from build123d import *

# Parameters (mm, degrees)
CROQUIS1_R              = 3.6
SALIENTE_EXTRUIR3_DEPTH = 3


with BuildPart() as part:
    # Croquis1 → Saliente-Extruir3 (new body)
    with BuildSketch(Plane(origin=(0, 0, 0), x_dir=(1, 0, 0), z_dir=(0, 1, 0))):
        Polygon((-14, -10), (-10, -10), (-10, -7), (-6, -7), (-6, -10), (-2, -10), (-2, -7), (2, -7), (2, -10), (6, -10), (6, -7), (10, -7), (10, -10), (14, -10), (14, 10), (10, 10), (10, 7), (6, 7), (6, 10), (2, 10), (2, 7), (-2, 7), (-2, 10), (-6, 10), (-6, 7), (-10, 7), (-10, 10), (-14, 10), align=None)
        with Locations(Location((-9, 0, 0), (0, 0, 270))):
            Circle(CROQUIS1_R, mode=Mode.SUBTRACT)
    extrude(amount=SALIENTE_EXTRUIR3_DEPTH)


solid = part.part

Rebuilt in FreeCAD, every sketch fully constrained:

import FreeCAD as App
import Part
import Sketcher
from FreeCAD import Vector
Q = App.Units.Quantity

doc = App.newDocument("Part")
body = doc.addObject("PartDesign::Body", "Body")

# Sketch on XZ plane
sketch1 = body.newObject("Sketcher::SketchObject", "Sketch")
sketch1.AttachmentSupport = (doc.getObject("XZ_Plane"), [""])
sketch1.MapMode = "FlatFace"
sketch1.addGeometry([
    Part.LineSegment(Vector(-14, 10, 0), Vector(-10, 10, 0)),  # 0
    Part.LineSegment(Vector(-10, 10, 0), Vector(-10, 7, 0)),  # 1
    Part.LineSegment(Vector(-10, 7, 0), Vector(-6, 7, 0)),  # 2
    Part.LineSegment(Vector(-6, 7, 0), Vector(-6, 10, 0)),  # 3
    Part.LineSegment(Vector(-6, 10, 0), Vector(-2, 10, 0)),  # 4
    Part.LineSegment(Vector(-2, 10, 0), Vector(-2, 7, 0)),  # 5
    Part.LineSegment(Vector(-2, 7, 0), Vector(2, 7, 0)),  # 6
    Part.LineSegment(Vector(2, 7, 0), Vector(2, 10, 0)),  # 7
    Part.LineSegment(Vector(2, 10, 0), Vector(6, 10, 0)),  # 8
    Part.LineSegment(Vector(6, 10, 0), Vector(6, 7, 0)),  # 9
    Part.LineSegment(Vector(6, 7, 0), Vector(10, 7, 0)),  # 10
    Part.LineSegment(Vector(10, 7, 0), Vector(10, 10, 0)),  # 11
    Part.LineSegment(Vector(10, 10, 0), Vector(14, 10, 0)),  # 12
    Part.LineSegment(Vector(14, 10, 0), Vector(14, -10, 0)),  # 13
    Part.LineSegment(Vector(14, -10, 0), Vector(10, -10, 0)),  # 14
    Part.LineSegment(Vector(10, -10, 0), Vector(10, -7, 0)),  # 15
    Part.LineSegment(Vector(10, -7, 0), Vector(6, -7, 0)),  # 16
    Part.LineSegment(Vector(6, -7, 0), Vector(6, -10, 0)),  # 17
    Part.LineSegment(Vector(6, -10, 0), Vector(2, -10, 0)),  # 18
    Part.LineSegment(Vector(2, -10, 0), Vector(2, -7, 0)),  # 19
    Part.LineSegment(Vector(2, -7, 0), Vector(-2, -7, 0)),  # 20
    Part.LineSegment(Vector(-2, -7, 0), Vector(-2, -10, 0)),  # 21
    Part.LineSegment(Vector(-2, -10, 0), Vector(-6, -10, 0)),  # 22
    Part.LineSegment(Vector(-6, -10, 0), Vector(-6, -7, 0)),  # 23
    Part.LineSegment(Vector(-6, -7, 0), Vector(-10, -7, 0)),  # 24
    Part.LineSegment(Vector(-10, -7, 0), Vector(-10, -10, 0)),  # 25
    Part.LineSegment(Vector(-10, -10, 0), Vector(-14, -10, 0)),  # 26
    Part.LineSegment(Vector(-14, -10, 0), Vector(-14, 10, 0)),  # 27
    Part.Circle(Vector(-9, 0, 0), Vector(0, 0, 1), 3.6),  # 28
], False)
sketch1.addConstraint([
    Sketcher.Constraint("Coincident", 0, 2, 1, 1),
    Sketcher.Constraint("Coincident", 1, 2, 2, 1),
    Sketcher.Constraint("Coincident", 2, 2, 3, 1),
    Sketcher.Constraint("Coincident", 3, 2, 4, 1),
    Sketcher.Constraint("Coincident", 4, 2, 5, 1),
    Sketcher.Constraint("Coincident", 5, 2, 6, 1),
    Sketcher.Constraint("Coincident", 6, 2, 7, 1),
    Sketcher.Constraint("Coincident", 7, 2, 8, 1),
    Sketcher.Constraint("Coincident", 8, 2, 9, 1),
    Sketcher.Constraint("Coincident", 9, 2, 10, 1),
    Sketcher.Constraint("Coincident", 10, 2, 11, 1),
    Sketcher.Constraint("Coincident", 11, 2, 12, 1),
    Sketcher.Constraint("Coincident", 12, 2, 13, 1),
    Sketcher.Constraint("Coincident", 13, 2, 14, 1),
    Sketcher.Constraint("Coincident", 14, 2, 15, 1),
    Sketcher.Constraint("Coincident", 15, 2, 16, 1),
    Sketcher.Constraint("Coincident", 16, 2, 17, 1),
    Sketcher.Constraint("Coincident", 17, 2, 18, 1),
    Sketcher.Constraint("Coincident", 18, 2, 19, 1),
    Sketcher.Constraint("Coincident", 19, 2, 20, 1),
    Sketcher.Constraint("Coincident", 20, 2, 21, 1),
    Sketcher.Constraint("Coincident", 21, 2, 22, 1),
    Sketcher.Constraint("Coincident", 22, 2, 23, 1),
    Sketcher.Constraint("Coincident", 23, 2, 24, 1),
    Sketcher.Constraint("Coincident", 24, 2, 25, 1),
    Sketcher.Constraint("Coincident", 25, 2, 26, 1),
    Sketcher.Constraint("Coincident", 26, 2, 27, 1),
    Sketcher.Constraint("Coincident", 27, 2, 0, 1),
    Sketcher.Constraint("Horizontal", 0),
    Sketcher.Constraint("Vertical", 1),
    Sketcher.Constraint("Horizontal", 2),
    Sketcher.Constraint("Vertical", 3),
    Sketcher.Constraint("Horizontal", 4),
    Sketcher.Constraint("Vertical", 5),
    Sketcher.Constraint("Horizontal", 6),
    Sketcher.Constraint("Vertical", 7),
    Sketcher.Constraint("Horizontal", 8),
    Sketcher.Constraint("Vertical", 9),
    Sketcher.Constraint("Horizontal", 10),
    Sketcher.Constraint("Vertical", 11),
    Sketcher.Constraint("Horizontal", 12),
    Sketcher.Constraint("Vertical", 13),
    Sketcher.Constraint("Horizontal", 14),
    Sketcher.Constraint("Vertical", 15),
    Sketcher.Constraint("Horizontal", 16),
    Sketcher.Constraint("Vertical", 17),
    Sketcher.Constraint("Horizontal", 18),
    Sketcher.Constraint("Vertical", 19),
    Sketcher.Constraint("Horizontal", 20),
    Sketcher.Constraint("Vertical", 21),
    Sketcher.Constraint("Horizontal", 22),
    Sketcher.Constraint("Vertical", 23),
    Sketcher.Constraint("Horizontal", 24),
    Sketcher.Constraint("Vertical", 25),
    Sketcher.Constraint("Horizontal", 26),
    Sketcher.Constraint("Vertical", 27),
    Sketcher.Constraint("Symmetric", 0, 2, 14, 2, -1, 1),
    Sketcher.Constraint("Symmetric", 2, 2, 16, 2, -1, 1),
    Sketcher.Constraint("Symmetric", 4, 2, 18, 2, -1, 1),
    Sketcher.Constraint("Symmetric", 6, 2, 20, 2, -1, 1),
    Sketcher.Constraint("Symmetric", 8, 2, 22, 2, -1, 1),
    Sketcher.Constraint("Symmetric", 10, 2, 24, 2, -1, 1),
    Sketcher.Constraint("Symmetric", 12, 2, 26, 2, -1, 1),
    Sketcher.Constraint("Symmetric", 4, 2, 7, 2, -2),
    Sketcher.Constraint("Symmetric", 2, 2, 9, 2, -2),
    Sketcher.Constraint("Symmetric", 0, 2, 11, 2, -2),
    Sketcher.Constraint("PointOnObject", 28, 3, -1),
    Sketcher.Constraint("Horizontal", 0, 2, 3, 2),
    Sketcher.Constraint("Horizontal", 2, 2, 5, 2),
    Sketcher.Constraint("Equal", 0, 2),
    Sketcher.Constraint("Equal", 2, 4),
    Sketcher.Constraint("Equal", 4, 6),
    Sketcher.Constraint("Diameter", 28, Q("7.2 mm")),
    Sketcher.Constraint("DistanceX", 0, 1, 0, 2, Q("4 mm")),
    Sketcher.Constraint("DistanceY", 1, 2, 1, 1, Q("3 mm")),
    Sketcher.Constraint("DistanceY", 13, 2, 13, 1, Q("20 mm")),
    Sketcher.Constraint("DistanceX", 28, 3, -1, 1, Q("9 mm")),
])
pad1 = body.newObject("PartDesign::Pad", "Pad")
pad1.Profile = sketch1
pad1.Length = 3
pad1.Reversed = True

doc.recompute()
